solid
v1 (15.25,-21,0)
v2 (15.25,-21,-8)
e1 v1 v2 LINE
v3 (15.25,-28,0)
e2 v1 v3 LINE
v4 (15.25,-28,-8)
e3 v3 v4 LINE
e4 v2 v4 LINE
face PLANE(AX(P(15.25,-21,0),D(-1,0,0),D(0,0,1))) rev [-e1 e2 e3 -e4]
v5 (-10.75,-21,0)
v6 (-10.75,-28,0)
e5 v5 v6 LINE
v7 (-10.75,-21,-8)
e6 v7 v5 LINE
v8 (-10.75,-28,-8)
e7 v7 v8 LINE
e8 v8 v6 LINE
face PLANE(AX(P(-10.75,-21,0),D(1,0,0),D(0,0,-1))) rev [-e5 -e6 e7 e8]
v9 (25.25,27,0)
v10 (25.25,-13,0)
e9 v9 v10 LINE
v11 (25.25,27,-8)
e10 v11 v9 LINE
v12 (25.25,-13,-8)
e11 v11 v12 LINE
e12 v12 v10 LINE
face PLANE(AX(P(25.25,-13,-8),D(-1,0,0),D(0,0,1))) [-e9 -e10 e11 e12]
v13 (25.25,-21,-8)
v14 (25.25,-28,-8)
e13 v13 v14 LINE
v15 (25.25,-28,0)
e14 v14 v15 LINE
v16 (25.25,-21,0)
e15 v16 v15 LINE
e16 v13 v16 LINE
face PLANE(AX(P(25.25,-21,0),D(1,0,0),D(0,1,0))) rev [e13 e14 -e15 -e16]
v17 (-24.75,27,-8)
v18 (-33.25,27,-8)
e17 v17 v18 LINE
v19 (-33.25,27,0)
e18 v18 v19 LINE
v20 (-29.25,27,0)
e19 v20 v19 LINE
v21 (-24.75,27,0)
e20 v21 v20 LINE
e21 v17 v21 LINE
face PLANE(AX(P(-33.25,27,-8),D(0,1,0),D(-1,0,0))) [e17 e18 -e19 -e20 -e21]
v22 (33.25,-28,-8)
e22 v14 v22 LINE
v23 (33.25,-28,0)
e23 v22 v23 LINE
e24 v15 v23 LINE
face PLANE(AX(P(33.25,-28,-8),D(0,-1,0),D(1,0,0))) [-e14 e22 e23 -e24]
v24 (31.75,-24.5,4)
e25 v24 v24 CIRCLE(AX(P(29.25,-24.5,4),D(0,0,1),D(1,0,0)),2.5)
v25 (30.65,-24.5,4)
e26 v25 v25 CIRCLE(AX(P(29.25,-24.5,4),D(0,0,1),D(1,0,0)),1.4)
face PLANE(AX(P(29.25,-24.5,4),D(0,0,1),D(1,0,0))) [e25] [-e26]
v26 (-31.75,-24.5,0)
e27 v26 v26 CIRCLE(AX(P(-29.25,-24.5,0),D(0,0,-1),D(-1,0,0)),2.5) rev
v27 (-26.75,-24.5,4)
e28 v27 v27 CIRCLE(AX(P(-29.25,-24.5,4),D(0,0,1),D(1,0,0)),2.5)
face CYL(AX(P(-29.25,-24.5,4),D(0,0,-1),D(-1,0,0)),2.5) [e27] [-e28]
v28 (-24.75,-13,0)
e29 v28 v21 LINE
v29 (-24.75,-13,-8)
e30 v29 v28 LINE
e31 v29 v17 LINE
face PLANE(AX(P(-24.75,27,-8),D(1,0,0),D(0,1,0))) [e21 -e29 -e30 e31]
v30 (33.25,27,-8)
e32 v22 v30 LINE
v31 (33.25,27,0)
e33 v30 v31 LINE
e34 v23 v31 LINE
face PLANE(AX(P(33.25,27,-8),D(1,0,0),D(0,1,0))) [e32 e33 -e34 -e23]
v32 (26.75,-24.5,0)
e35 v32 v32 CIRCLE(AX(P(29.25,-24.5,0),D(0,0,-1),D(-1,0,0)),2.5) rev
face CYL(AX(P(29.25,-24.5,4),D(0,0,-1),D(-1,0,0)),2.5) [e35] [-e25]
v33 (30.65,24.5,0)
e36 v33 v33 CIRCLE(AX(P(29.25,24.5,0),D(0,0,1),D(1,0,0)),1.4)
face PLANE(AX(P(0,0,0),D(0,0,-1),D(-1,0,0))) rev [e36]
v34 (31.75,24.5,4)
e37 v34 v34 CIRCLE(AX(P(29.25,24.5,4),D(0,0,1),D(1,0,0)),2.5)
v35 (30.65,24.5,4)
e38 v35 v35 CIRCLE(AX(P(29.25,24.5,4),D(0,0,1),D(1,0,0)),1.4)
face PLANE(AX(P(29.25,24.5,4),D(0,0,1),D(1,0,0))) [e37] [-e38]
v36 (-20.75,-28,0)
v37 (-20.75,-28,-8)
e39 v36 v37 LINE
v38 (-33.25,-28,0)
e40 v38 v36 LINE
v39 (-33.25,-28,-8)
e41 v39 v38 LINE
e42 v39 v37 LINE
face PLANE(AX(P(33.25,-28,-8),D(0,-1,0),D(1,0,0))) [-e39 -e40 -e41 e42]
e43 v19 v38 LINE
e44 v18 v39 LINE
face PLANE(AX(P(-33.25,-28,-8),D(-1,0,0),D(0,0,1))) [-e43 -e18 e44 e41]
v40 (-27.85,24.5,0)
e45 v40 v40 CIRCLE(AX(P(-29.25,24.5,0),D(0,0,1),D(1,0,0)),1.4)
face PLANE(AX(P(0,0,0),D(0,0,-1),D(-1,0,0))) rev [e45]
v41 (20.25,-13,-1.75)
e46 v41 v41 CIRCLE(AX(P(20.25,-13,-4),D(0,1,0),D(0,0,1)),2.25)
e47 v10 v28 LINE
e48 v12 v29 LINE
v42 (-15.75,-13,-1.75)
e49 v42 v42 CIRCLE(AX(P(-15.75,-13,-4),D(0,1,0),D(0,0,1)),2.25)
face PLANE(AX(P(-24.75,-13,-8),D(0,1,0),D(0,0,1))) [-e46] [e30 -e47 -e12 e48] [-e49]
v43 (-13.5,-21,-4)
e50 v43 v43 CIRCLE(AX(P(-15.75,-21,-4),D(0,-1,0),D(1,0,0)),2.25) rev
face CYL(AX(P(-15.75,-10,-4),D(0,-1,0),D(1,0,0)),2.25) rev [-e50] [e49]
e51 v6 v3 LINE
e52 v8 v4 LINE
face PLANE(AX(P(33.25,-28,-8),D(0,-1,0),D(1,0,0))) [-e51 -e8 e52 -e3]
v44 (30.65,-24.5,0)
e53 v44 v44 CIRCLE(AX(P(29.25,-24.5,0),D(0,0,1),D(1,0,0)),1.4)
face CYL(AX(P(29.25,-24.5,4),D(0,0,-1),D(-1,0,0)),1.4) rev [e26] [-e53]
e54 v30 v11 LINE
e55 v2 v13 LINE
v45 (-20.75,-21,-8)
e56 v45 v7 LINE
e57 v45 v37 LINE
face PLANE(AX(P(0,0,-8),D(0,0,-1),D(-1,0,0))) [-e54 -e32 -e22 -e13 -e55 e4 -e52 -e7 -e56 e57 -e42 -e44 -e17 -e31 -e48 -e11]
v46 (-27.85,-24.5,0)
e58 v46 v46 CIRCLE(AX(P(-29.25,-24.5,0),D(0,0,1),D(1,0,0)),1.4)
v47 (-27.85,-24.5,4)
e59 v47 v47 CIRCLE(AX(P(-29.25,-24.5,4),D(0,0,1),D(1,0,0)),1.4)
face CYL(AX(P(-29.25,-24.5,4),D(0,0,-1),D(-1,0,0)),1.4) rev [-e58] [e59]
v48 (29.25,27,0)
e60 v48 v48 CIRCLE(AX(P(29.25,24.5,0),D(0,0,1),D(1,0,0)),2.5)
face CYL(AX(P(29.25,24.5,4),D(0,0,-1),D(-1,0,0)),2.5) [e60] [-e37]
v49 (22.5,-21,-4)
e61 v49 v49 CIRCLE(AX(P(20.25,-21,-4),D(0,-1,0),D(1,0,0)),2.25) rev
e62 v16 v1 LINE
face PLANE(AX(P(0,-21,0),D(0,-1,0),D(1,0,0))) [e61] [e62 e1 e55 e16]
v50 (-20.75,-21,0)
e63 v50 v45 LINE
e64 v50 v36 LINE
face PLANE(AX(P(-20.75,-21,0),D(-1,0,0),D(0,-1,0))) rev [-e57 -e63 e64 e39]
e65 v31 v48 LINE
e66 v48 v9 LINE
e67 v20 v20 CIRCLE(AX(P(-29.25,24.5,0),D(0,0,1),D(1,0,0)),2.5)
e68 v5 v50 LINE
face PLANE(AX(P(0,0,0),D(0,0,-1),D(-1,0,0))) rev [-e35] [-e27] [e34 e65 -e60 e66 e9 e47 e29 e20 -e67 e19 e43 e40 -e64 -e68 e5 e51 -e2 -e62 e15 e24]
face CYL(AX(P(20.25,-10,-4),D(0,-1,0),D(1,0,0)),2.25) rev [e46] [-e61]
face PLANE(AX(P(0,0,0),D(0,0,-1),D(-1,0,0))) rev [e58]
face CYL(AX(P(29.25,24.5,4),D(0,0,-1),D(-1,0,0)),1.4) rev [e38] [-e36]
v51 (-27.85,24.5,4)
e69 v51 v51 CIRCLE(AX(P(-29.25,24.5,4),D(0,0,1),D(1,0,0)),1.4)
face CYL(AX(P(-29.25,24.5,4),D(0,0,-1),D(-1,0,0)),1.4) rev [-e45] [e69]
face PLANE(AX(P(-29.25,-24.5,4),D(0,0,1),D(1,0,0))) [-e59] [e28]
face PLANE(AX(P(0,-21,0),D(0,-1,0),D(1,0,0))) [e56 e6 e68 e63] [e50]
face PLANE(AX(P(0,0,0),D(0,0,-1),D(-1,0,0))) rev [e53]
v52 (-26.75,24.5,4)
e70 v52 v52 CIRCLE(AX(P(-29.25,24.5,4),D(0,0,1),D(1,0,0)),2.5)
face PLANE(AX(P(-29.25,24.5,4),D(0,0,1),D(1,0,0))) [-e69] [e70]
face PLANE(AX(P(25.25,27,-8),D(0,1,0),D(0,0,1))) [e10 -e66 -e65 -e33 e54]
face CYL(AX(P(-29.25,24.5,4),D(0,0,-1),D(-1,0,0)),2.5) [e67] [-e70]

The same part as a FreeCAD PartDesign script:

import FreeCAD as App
import Part
import Sketcher

V = App.Vector
Q = App.Units.Quantity


def add_polygon(sketch, points):
    """Adds a closed chain of lines whose ends are joined by coincident constraints."""
    first, n = sketch.GeometryCount, len(points)
    for a, b in zip(points, points[1:] + points[:1]):
        sketch.addGeometry(Part.LineSegment(App.Vector(*a, 0), App.Vector(*b, 0)), False)
    for i in range(n):
        sketch.addConstraint(Sketcher.Constraint("Coincident", first + i, 2, first + (i + 1) % n, 1))

doc = App.newDocument("Part")
body = doc.addObject("PartDesign::Body", "Body")

# Sketch on XY plane
sketch1 = body.newObject("Sketcher::SketchObject", "Sketch")
sketch1.AttachmentSupport = (doc.getObject("XY_Plane"), [""])
sketch1.MapMode = "FlatFace"
sketch1.addGeometry(Part.Circle(V(-29.25, 24.5, 0), V(0, 0, 1), 2.5), False)
sketch1.addGeometry(Part.Circle(V(-29.25, 24.5, 0), V(0, 0, 1), 1.4), False)
sketch1.addConstraint(Sketcher.Constraint("Coincident", 1, 3, 0, 3))
sketch1.addConstraint(Sketcher.Constraint("Diameter", 0, Q("5 mm")))
sketch1.addConstraint(Sketcher.Constraint("Diameter", 1, Q("2.8 mm")))
sketch1.addConstraint(Sketcher.Constraint("DistanceY", -1, 1, 0, 3, Q("24.5 mm")))
sketch1.addConstraint(Sketcher.Constraint("DistanceX", 0, 3, -1, 1, Q("29.25 mm")))
pad1 = body.newObject("PartDesign::Pad", "Pad")
pad1.Profile = sketch1
pad1.Length = 4
body2 = doc.addObject("PartDesign::Body", "Body001")

# Sketch on XY plane
sketch2 = body2.newObject("Sketcher::SketchObject", "Sketch001")
sketch2.AttachmentSupport = (doc.getObject("XY_Plane001"), [""])
sketch2.MapMode = "FlatFace"
sketch2.addGeometry(Part.Circle(V(29.25, 24.5, 0), V(0, 0, 1), 2.5), False)
sketch2.addGeometry(Part.Circle(V(29.25, 24.5, 0), V(0, 0, 1), 1.4), False)
sketch2.addConstraint(Sketcher.Constraint("Coincident", 1, 3, 0, 3))
sketch2.addConstraint(Sketcher.Constraint("Diameter", 0, Q("5 mm")))
sketch2.addConstraint(Sketcher.Constraint("Diameter", 1, Q("2.8 mm")))
sketch2.addConstraint(Sketcher.Constraint("DistanceY", -1, 1, 0, 3, Q("24.5 mm")))
sketch2.addConstraint(Sketcher.Constraint("DistanceX", -1, 1, 0, 3, Q("29.25 mm")))
pad2 = body2.newObject("PartDesign::Pad", "Pad001")
pad2.Profile = sketch2
pad2.Length = 4
body3 = doc.addObject("PartDesign::Body", "Body002")

# Sketch on XY plane
sketch3 = body3.newObject("Sketcher::SketchObject", "Sketch002")
sketch3.AttachmentSupport = (doc.getObject("XY_Plane002"), [""])
sketch3.MapMode = "FlatFace"
sketch3.addGeometry(Part.Circle(V(29.25, -24.5, 0), V(0, 0, 1), 2.5), False)
sketch3.addGeometry(Part.Circle(V(29.25, -24.5, 0), V(0, 0, 1), 1.4), False)
sketch3.addConstraint(Sketcher.Constraint("Coincident", 1, 3, 0, 3))
sketch3.addConstraint(Sketcher.Constraint("Diameter", 0, Q("5 mm")))
sketch3.addConstraint(Sketcher.Constraint("Diameter", 1, Q("2.8 mm")))
sketch3.addConstraint(Sketcher.Constraint("DistanceY", 0, 3, -1, 1, Q("24.5 mm")))
sketch3.addConstraint(Sketcher.Constraint("DistanceX", -1, 1, 0, 3, Q("29.25 mm")))
pad3 = body3.newObject("PartDesign::Pad", "Pad002")
pad3.Profile = sketch3
pad3.Length = 4
body4 = doc.addObject("PartDesign::Body", "Body003")

# Sketch on XY plane
sketch4 = body4.newObject("Sketcher::SketchObject", "Sketch003")
sketch4.AttachmentSupport = (doc.getObject("XY_Plane003"), [""])
sketch4.MapMode = "FlatFace"
sketch4.addGeometry(Part.Circle(V(-29.25, -24.5, 0), V(0, 0, 1), 2.5), False)
sketch4.addGeometry(Part.Circle(V(-29.25, -24.5, 0), V(0, 0, 1), 1.4), False)
sketch4.addConstraint(Sketcher.Constraint("Coincident", 1, 3, 0, 3))
sketch4.addConstraint(Sketcher.Constraint("Diameter", 0, Q("5 mm")))
sketch4.addConstraint(Sketcher.Constraint("Diameter", 1, Q("2.8 mm")))
sketch4.addConstraint(Sketcher.Constraint("DistanceY", 0, 3, -1, 1, Q("24.5 mm")))
sketch4.addConstraint(Sketcher.Constraint("DistanceX", 0, 3, -1, 1, Q("29.25 mm")))
pad4 = body4.newObject("PartDesign::Pad", "Pad003")
pad4.Profile = sketch4
pad4.Length = 4
body.AllowCompound = True
doc.recompute()

boolean = body.newObject("PartDesign::Boolean", "Boolean")
boolean.Type = "Fuse"
boolean.addObjects([body2])
doc.recompute()

boolean2 = body.newObject("PartDesign::Boolean", "Boolean001")
boolean2.Type = "Fuse"
boolean2.addObjects([body3])
doc.recompute()

boolean3 = body.newObject("PartDesign::Boolean", "Boolean002")
boolean3.Type = "Fuse"
boolean3.addObjects([body4])

# Sketch on XY plane
sketch5 = body.newObject("Sketcher::SketchObject", "Sketch004")
sketch5.AttachmentSupport = (doc.getObject("XY_Plane"), [""])
sketch5.MapMode = "FlatFace"
add_polygon(sketch5, [(33.25, -28), (33.25, 27), (25.25, 27), (25.25, -13), (-24.75, -13), (-24.75, 27), (-33.25, 27), (-33.25, -28)])  # lines 0-7
sketch5.addConstraint(Sketcher.Constraint("Vertical", 0))
sketch5.addConstraint(Sketcher.Constraint("Horizontal", 1))
sketch5.addConstraint(Sketcher.Constraint("Vertical", 2))
sketch5.addConstraint(Sketcher.Constraint("Horizontal", 3))
sketch5.addConstraint(Sketcher.Constraint("Vertical", 4))
sketch5.addConstraint(Sketcher.Constraint("Horizontal", 5))
sketch5.addConstraint(Sketcher.Constraint("Vertical", 6))
sketch5.addConstraint(Sketcher.Constraint("Horizontal", 7))
sketch5.addConstraint(Sketcher.Constraint("Symmetric", 0, 2, 5, 2, -2))
sketch5.addConstraint(Sketcher.Constraint("DistanceX", 1, 2, 1, 1, Q("8 mm")))
sketch5.addConstraint(Sketcher.Constraint("DistanceX", 3, 2, 3, 1, Q("50 mm")))
sketch5.addConstraint(Sketcher.Constraint("DistanceY", 0, 1, 0, 2, Q("55 mm")))
sketch5.addConstraint(Sketcher.Constraint("DistanceY", 2, 2, 2, 1, Q("40 mm")))
sketch5.addConstraint(Sketcher.Constraint("DistanceX", 5, 2, 5, 1, Q("8.5 mm")))
sketch5.addConstraint(Sketcher.Constraint("DistanceY", -1, 1, 0, 2, Q("27 mm")))
pad5 = body.newObject("PartDesign::Pad", "Pad004")
pad5.Profile = sketch5
pad5.Length = 8
pad5.Reversed = True

# Sketch on XZ plane
sketch6 = body.newObject("Sketcher::SketchObject", "Sketch005")
sketch6.AttachmentSupport = (doc.getObject("XZ_Plane"), [""])
sketch6.MapMode = "FlatFace"
sketch6.AttachmentOffset = App.Placement(V(0, 0, 28), App.Rotation())
sketch6.addGeometry(Part.Circle(V(-15.75, -4, 0), V(0, 0, 1), 2.25), False)
sketch6.addGeometry(Part.Circle(V(20.25, -4, 0), V(0, 0, 1), 2.25), False)
sketch6.addConstraint(Sketcher.Constraint("Equal", 0, 1))
sketch6.addConstraint(Sketcher.Constraint("Horizontal", 0, 3, 1, 3))
sketch6.addConstraint(Sketcher.Constraint("Diameter", 0, Q("4.5 mm")))
sketch6.addConstraint(Sketcher.Constraint("DistanceY", 0, 3, -1, 1, Q("4 mm")))
sketch6.addConstraint(Sketcher.Constraint("DistanceX", 0, 3, 1, 3, Q("36 mm")))
sketch6.addConstraint(Sketcher.Constraint("DistanceX", 0, 3, -1, 1, Q("15.75 mm")))
pocket1 = body.newObject("PartDesign::Pocket", "Pocket")
pocket1.Profile = sketch6
pocket1.Length = 18

# Sketch on XZ plane
sketch7 = body.newObject("Sketcher::SketchObject", "Sketch006")
sketch7.AttachmentSupport = (doc.getObject("XZ_Plane"), [""])
sketch7.MapMode = "FlatFace"
sketch7.AttachmentOffset = App.Placement(V(0, 0, 28), App.Rotation())
add_polygon(sketch7, [(-20.75, 0), (-20.75, -8), (-10.75, -8), (-10.75, 0)])  # lines 0-3
add_polygon(sketch7, [(15.25, 0), (15.25, -8), (25.25, -8), (25.25, 0)])  # lines 4-7
sketch7.addConstraint(Sketcher.Constraint("Vertical", 0))
sketch7.addConstraint(Sketcher.Constraint("Horizontal", 1))
sketch7.addConstraint(Sketcher.Constraint("Vertical", 2))
sketch7.addConstraint(Sketcher.Constraint("Horizontal", 3))
sketch7.addConstraint(Sketcher.Constraint("Vertical", 4))
sketch7.addConstraint(Sketcher.Constraint("Horizontal", 5))
sketch7.addConstraint(Sketcher.Constraint("Vertical", 6))
sketch7.addConstraint(Sketcher.Constraint("Horizontal", 7))
sketch7.addConstraint(Sketcher.Constraint("PointOnObject", 2, 2, -1))
sketch7.addConstraint(Sketcher.Constraint("PointOnObject", 6, 2, -1))
sketch7.addConstraint(Sketcher.Constraint("Horizontal", 1, 2, 4, 2))
sketch7.addConstraint(Sketcher.Constraint("Equal", 3, 5))
sketch7.addConstraint(Sketcher.Constraint("DistanceX", 1, 1, 1, 2, Q("10 mm")))
sketch7.addConstraint(Sketcher.Constraint("DistanceY", 0, 2, 0, 1, Q("8 mm")))
sketch7.addConstraint(Sketcher.Constraint("DistanceX", 1, 2, 4, 2, Q("26 mm")))
sketch7.addConstraint(Sketcher.Constraint("DistanceX", 0, 2, -1, 1, Q("20.75 mm")))
pocket2 = body.newObject("PartDesign::Pocket", "Pocket001")
pocket2.Profile = sketch7
pocket2.Length = 7

doc.recompute()
